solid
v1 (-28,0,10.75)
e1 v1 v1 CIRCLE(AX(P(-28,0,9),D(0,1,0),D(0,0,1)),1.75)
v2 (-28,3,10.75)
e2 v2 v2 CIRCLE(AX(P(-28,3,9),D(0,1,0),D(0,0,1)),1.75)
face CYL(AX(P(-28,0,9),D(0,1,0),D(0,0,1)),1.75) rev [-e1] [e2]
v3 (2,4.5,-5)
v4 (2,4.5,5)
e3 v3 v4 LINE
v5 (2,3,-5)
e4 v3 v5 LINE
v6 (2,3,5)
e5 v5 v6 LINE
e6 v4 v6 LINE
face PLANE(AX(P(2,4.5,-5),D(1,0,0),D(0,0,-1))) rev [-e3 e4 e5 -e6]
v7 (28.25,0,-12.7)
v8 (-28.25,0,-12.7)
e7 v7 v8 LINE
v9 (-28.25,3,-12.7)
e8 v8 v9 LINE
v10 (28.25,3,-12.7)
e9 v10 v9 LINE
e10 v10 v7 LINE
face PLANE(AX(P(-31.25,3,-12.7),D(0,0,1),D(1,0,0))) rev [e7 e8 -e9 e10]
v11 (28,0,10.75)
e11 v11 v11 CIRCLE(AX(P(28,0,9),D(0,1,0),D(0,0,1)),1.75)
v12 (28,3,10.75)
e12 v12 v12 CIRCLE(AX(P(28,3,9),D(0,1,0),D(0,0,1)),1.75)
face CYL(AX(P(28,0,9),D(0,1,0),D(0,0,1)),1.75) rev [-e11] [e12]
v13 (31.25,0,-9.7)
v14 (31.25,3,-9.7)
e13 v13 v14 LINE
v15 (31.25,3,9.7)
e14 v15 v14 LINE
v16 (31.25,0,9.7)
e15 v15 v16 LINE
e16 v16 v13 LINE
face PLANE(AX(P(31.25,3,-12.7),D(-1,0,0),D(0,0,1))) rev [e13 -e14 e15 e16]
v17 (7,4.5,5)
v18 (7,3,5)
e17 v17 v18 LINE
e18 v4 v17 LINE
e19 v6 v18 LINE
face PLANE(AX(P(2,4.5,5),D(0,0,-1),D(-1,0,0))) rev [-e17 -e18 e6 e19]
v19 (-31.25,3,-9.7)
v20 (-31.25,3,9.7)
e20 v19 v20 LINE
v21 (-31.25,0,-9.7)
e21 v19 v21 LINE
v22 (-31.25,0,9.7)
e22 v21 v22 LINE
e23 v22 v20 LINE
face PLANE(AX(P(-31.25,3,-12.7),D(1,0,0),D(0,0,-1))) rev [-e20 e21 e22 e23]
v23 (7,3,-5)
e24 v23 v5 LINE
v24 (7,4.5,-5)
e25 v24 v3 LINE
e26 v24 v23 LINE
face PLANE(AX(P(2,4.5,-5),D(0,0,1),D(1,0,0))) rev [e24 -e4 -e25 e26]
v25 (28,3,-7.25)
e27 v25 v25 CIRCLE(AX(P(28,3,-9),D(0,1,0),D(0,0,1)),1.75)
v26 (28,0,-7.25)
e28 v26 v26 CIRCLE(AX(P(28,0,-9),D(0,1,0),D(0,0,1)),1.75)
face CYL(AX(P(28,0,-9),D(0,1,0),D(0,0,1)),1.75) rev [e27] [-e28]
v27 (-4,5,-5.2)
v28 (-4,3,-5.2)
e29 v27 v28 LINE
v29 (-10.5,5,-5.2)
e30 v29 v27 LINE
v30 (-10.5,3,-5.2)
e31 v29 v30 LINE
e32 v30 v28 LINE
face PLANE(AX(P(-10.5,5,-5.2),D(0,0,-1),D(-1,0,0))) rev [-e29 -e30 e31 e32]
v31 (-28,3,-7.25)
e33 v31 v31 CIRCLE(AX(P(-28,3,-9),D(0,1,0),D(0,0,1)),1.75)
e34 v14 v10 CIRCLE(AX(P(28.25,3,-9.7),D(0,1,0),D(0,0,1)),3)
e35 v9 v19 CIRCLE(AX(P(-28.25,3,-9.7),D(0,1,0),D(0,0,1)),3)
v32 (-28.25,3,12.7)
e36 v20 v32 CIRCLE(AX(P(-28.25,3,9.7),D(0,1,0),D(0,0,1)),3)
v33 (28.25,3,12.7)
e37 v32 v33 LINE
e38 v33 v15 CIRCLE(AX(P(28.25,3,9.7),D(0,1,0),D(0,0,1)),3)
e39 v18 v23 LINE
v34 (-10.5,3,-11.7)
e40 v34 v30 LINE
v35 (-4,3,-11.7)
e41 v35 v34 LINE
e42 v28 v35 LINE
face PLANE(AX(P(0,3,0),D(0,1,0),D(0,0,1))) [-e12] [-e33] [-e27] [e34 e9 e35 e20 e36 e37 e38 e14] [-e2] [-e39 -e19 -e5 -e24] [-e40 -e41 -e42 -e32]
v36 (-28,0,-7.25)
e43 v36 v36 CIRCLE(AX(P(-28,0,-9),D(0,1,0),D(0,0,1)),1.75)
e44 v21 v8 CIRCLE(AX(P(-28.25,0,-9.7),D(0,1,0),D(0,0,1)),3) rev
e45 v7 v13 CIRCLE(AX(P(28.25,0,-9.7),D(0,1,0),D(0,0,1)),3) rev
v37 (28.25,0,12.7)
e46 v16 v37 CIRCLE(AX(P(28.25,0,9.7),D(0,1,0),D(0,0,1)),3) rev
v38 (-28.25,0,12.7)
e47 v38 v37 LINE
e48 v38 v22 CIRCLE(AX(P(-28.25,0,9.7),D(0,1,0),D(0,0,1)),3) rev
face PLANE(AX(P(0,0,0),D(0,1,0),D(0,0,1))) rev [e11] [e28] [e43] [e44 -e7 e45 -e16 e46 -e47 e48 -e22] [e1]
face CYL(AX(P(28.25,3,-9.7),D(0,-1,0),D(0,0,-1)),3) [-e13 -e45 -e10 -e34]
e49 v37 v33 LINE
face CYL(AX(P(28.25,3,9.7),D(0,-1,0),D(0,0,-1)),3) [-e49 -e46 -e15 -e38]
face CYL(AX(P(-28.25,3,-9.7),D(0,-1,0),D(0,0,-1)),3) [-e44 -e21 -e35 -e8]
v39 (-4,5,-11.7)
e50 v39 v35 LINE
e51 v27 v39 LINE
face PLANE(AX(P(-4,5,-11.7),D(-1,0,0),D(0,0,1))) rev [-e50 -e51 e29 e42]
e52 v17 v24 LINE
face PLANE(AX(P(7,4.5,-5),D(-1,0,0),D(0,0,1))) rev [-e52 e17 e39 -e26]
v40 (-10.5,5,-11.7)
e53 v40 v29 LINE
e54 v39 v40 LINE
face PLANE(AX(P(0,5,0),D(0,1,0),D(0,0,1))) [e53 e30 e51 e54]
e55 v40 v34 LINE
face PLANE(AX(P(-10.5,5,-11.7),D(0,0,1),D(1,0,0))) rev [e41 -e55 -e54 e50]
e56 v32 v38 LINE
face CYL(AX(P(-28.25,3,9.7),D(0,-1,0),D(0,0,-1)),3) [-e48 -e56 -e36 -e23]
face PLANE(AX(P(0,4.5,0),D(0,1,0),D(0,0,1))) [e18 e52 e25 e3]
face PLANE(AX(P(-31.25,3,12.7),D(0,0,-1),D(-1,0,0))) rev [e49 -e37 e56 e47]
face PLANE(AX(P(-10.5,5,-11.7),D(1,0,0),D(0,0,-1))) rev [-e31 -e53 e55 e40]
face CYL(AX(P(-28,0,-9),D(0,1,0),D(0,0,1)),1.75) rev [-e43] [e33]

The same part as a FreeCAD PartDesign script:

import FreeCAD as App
import Part
import Sketcher

V = App.Vector


def edges_at(feature, points):
    """Names of the edges that pass closest to the given points."""
    edges = feature.Shape.Edges
    near = lambda p: min(range(len(edges)), key=lambda i: edges[i].distToShape(Part.Vertex(*p))[0])
    return sorted({f"Edge{near(p) + 1}" for p in points})

doc = App.newDocument("Part")
body = doc.addObject("PartDesign::Body", "Body")

# Sketch on XZ plane
sketch1 = doc.addObject("Sketcher::SketchObject", "Sketch")
body.addObject(sketch1)
sketch1.AttachmentSupport = (doc.XZ_Plane, [""])
sketch1.MapMode = "FlatFace"
sketch1.addGeometry(Part.LineSegment(V(-31.25, -12.7, 0), V(-31.25, 12.7, 0)), False)
sketch1.addGeometry(Part.LineSegment(V(-31.25, 12.7, 0), V(31.25, 12.7, 0)), False)
sketch1.addGeometry(Part.LineSegment(V(31.25, 12.7, 0), V(31.25, -12.7, 0)), False)
sketch1.addGeometry(Part.LineSegment(V(31.25, -12.7, 0), V(-31.25, -12.7, 0)), False)
sketch1.addConstraint(Sketcher.Constraint("Coincident", 0, 2, 1, 1))
sketch1.addConstraint(Sketcher.Constraint("Coincident", 1, 2, 2, 1))
sketch1.addConstraint(Sketcher.Constraint("Coincident", 2, 2, 3, 1))
sketch1.addConstraint(Sketcher.Constraint("Coincident", 3, 2, 0, 1))
sketch1.addConstraint(Sketcher.Constraint("Vertical", 0))
sketch1.addConstraint(Sketcher.Constraint("Horizontal", 1))
sketch1.addConstraint(Sketcher.Constraint("Vertical", 2))
sketch1.addConstraint(Sketcher.Constraint("Horizontal", 3))
sketch1.addConstraint(Sketcher.Constraint("Symmetric", 0, 2, 2, 2, -1, 1))
sketch1.addConstraint(Sketcher.Constraint("DistanceX", 1, 1, 1, 2, 62.5))
sketch1.addConstraint(Sketcher.Constraint("DistanceY", 0, 1, 0, 2, 25.4))
pad1 = doc.addObject("PartDesign::Pad", "Pad")
body.addObject(pad1)
pad1.Profile = sketch1
pad1.Length = 3
pad1.Reversed = True
doc.recompute()

fillet = doc.addObject("PartDesign::Fillet", "Fillet")
body.addObject(fillet)
fillet.Base = (pad1, edges_at(pad1, [
    (31.25, 1.5, 12.7),
    (-31.25, 1.5, 12.7),
    (-31.25, 1.5, -12.7),
    (31.25, 1.5, -12.7),
]))
fillet.Radius = 3

# Sketch on XZ plane
sketch2 = doc.addObject("Sketcher::SketchObject", "Sketch001")
body.addObject(sketch2)
sketch2.AttachmentSupport = (doc.XZ_Plane, [""])
sketch2.MapMode = "FlatFace"
sketch2.AttachmentOffset = App.Placement(V(0, 0, -3), App.Rotation())
sketch2.addGeometry(Part.Circle(V(-28, -9, 0), V(0, 0, 1), 1.75), False)
sketch2.addGeometry(Part.Circle(V(28, -9, 0), V(0, 0, 1), 1.75), False)
sketch2.addGeometry(Part.Circle(V(28, 9, 0), V(0, 0, 1), 1.75), False)
sketch2.addGeometry(Part.Circle(V(-28, 9, 0), V(0, 0, 1), 1.75), False)
sketch2.addConstraint(Sketcher.Constraint("Equal", 0, 1))
sketch2.addConstraint(Sketcher.Constraint("Equal", 1, 2))
sketch2.addConstraint(Sketcher.Constraint("Equal", 2, 3))
sketch2.addConstraint(Sketcher.Constraint("Symmetric", 0, 3, 2, 3, -1, 1))
sketch2.addConstraint(Sketcher.Constraint("Symmetric", 1, 3, 3, 3, -1, 1))
sketch2.addConstraint(Sketcher.Constraint("Symmetric", 0, 3, 1, 3, -2))
sketch2.addConstraint(Sketcher.Constraint("Diameter", 0, 3.5))
sketch2.addConstraint(Sketcher.Constraint("DistanceX", 0, 3, -1, 1, 28.0))
sketch2.addConstraint(Sketcher.Constraint("DistanceY", 0, 3, -1, 1, 9.0))
pocket1 = doc.addObject("PartDesign::Pocket", "Pocket")
body.addObject(pocket1)
pocket1.Profile = sketch2
pocket1.Type = "ThroughAll"
pocket1.Reversed = True

# Sketch on XZ plane
sketch3 = doc.addObject("Sketcher::SketchObject", "Sketch002")
body.addObject(sketch3)
sketch3.AttachmentSupport = (doc.XZ_Plane, [""])
sketch3.MapMode = "FlatFace"
sketch3.AttachmentOffset = App.Placement(V(0, 0, -3), App.Rotation())
sketch3.addGeometry(Part.LineSegment(V(-10.5, -11.7, 0), V(-10.5, -5.2, 0)), False)
sketch3.addGeometry(Part.LineSegment(V(-10.5, -5.2, 0), V(-4, -5.2, 0)), False)
sketch3.addGeometry(Part.LineSegment(V(-4, -5.2, 0), V(-4, -11.7, 0)), False)
sketch3.addGeometry(Part.LineSegment(V(-4, -11.7, 0), V(-10.5, -11.7, 0)), False)
sketch3.addConstraint(Sketcher.Constraint("Coincident", 0, 2, 1, 1))
sketch3.addConstraint(Sketcher.Constraint("Coincident", 1, 2, 2, 1))
sketch3.addConstraint(Sketcher.Constraint("Coincident", 2, 2, 3, 1))
sketch3.addConstraint(Sketcher.Constraint("Coincident", 3, 2, 0, 1))
sketch3.addConstraint(Sketcher.Constraint("Vertical", 0))
sketch3.addConstraint(Sketcher.Constraint("Horizontal", 1))
sketch3.addConstraint(Sketcher.Constraint("Vertical", 2))
sketch3.addConstraint(Sketcher.Constraint("Horizontal", 3))
sketch3.addConstraint(Sketcher.Constraint("Equal", 3, 0))
sketch3.addConstraint(Sketcher.Constraint("DistanceX", 1, 1, 1, 2, 6.5))
sketch3.addConstraint(Sketcher.Constraint("DistanceX", 1, 2, -1, 1, 4.0))
sketch3.addConstraint(Sketcher.Constraint("DistanceY", 0, 2, -1, 1, 5.2))
pad2 = doc.addObject("PartDesign::Pad", "Pad001")
body.addObject(pad2)
pad2.Profile = sketch3
pad2.Length = 2
pad2.Reversed = True

# Sketch on XZ plane
sketch4 = doc.addObject("Sketcher::SketchObject", "Sketch003")
body.addObject(sketch4)
sketch4.AttachmentSupport = (doc.XZ_Plane, [""])
sketch4.MapMode = "FlatFace"
sketch4.AttachmentOffset = App.Placement(V(0, 0, -3), App.Rotation())
sketch4.addGeometry(Part.LineSegment(V(2, -5, 0), V(2, 5, 0)), False)
sketch4.addGeometry(Part.LineSegment(V(2, 5, 0), V(7, 5, 0)), False)
sketch4.addGeometry(Part.LineSegment(V(7, 5, 0), V(7, -5, 0)), False)
sketch4.addGeometry(Part.LineSegment(V(7, -5, 0), V(2, -5, 0)), False)
sketch4.addConstraint(Sketcher.Constraint("Coincident", 0, 2, 1, 1))
sketch4.addConstraint(Sketcher.Constraint("Coincident", 1, 2, 2, 1))
sketch4.addConstraint(Sketcher.Constraint("Coincident", 2, 2, 3, 1))
sketch4.addConstraint(Sketcher.Constraint("Coincident", 3, 2, 0, 1))
sketch4.addConstraint(Sketcher.Constraint("Vertical", 0))
sketch4.addConstraint(Sketcher.Constraint("Horizontal", 1))
sketch4.addConstraint(Sketcher.Constraint("Vertical", 2))
sketch4.addConstraint(Sketcher.Constraint("Horizontal", 3))
sketch4.addConstraint(Sketcher.Constraint("DistanceX", 1, 1, 1, 2, 5.0))
sketch4.addConstraint(Sketcher.Constraint("DistanceY", 0, 1, 0, 2, 10.0))
sketch4.addConstraint(Sketcher.Constraint("DistanceX", -1, 1, 0, 2, 2.0))
sketch4.addConstraint(Sketcher.Constraint("DistanceY", -1, 1, 0, 2, 5.0))
pad3 = doc.addObject("PartDesign::Pad", "Pad002")
body.addObject(pad3)
pad3.Profile = sketch4
pad3.Length = 1.5
pad3.Reversed = True

doc.recompute()
